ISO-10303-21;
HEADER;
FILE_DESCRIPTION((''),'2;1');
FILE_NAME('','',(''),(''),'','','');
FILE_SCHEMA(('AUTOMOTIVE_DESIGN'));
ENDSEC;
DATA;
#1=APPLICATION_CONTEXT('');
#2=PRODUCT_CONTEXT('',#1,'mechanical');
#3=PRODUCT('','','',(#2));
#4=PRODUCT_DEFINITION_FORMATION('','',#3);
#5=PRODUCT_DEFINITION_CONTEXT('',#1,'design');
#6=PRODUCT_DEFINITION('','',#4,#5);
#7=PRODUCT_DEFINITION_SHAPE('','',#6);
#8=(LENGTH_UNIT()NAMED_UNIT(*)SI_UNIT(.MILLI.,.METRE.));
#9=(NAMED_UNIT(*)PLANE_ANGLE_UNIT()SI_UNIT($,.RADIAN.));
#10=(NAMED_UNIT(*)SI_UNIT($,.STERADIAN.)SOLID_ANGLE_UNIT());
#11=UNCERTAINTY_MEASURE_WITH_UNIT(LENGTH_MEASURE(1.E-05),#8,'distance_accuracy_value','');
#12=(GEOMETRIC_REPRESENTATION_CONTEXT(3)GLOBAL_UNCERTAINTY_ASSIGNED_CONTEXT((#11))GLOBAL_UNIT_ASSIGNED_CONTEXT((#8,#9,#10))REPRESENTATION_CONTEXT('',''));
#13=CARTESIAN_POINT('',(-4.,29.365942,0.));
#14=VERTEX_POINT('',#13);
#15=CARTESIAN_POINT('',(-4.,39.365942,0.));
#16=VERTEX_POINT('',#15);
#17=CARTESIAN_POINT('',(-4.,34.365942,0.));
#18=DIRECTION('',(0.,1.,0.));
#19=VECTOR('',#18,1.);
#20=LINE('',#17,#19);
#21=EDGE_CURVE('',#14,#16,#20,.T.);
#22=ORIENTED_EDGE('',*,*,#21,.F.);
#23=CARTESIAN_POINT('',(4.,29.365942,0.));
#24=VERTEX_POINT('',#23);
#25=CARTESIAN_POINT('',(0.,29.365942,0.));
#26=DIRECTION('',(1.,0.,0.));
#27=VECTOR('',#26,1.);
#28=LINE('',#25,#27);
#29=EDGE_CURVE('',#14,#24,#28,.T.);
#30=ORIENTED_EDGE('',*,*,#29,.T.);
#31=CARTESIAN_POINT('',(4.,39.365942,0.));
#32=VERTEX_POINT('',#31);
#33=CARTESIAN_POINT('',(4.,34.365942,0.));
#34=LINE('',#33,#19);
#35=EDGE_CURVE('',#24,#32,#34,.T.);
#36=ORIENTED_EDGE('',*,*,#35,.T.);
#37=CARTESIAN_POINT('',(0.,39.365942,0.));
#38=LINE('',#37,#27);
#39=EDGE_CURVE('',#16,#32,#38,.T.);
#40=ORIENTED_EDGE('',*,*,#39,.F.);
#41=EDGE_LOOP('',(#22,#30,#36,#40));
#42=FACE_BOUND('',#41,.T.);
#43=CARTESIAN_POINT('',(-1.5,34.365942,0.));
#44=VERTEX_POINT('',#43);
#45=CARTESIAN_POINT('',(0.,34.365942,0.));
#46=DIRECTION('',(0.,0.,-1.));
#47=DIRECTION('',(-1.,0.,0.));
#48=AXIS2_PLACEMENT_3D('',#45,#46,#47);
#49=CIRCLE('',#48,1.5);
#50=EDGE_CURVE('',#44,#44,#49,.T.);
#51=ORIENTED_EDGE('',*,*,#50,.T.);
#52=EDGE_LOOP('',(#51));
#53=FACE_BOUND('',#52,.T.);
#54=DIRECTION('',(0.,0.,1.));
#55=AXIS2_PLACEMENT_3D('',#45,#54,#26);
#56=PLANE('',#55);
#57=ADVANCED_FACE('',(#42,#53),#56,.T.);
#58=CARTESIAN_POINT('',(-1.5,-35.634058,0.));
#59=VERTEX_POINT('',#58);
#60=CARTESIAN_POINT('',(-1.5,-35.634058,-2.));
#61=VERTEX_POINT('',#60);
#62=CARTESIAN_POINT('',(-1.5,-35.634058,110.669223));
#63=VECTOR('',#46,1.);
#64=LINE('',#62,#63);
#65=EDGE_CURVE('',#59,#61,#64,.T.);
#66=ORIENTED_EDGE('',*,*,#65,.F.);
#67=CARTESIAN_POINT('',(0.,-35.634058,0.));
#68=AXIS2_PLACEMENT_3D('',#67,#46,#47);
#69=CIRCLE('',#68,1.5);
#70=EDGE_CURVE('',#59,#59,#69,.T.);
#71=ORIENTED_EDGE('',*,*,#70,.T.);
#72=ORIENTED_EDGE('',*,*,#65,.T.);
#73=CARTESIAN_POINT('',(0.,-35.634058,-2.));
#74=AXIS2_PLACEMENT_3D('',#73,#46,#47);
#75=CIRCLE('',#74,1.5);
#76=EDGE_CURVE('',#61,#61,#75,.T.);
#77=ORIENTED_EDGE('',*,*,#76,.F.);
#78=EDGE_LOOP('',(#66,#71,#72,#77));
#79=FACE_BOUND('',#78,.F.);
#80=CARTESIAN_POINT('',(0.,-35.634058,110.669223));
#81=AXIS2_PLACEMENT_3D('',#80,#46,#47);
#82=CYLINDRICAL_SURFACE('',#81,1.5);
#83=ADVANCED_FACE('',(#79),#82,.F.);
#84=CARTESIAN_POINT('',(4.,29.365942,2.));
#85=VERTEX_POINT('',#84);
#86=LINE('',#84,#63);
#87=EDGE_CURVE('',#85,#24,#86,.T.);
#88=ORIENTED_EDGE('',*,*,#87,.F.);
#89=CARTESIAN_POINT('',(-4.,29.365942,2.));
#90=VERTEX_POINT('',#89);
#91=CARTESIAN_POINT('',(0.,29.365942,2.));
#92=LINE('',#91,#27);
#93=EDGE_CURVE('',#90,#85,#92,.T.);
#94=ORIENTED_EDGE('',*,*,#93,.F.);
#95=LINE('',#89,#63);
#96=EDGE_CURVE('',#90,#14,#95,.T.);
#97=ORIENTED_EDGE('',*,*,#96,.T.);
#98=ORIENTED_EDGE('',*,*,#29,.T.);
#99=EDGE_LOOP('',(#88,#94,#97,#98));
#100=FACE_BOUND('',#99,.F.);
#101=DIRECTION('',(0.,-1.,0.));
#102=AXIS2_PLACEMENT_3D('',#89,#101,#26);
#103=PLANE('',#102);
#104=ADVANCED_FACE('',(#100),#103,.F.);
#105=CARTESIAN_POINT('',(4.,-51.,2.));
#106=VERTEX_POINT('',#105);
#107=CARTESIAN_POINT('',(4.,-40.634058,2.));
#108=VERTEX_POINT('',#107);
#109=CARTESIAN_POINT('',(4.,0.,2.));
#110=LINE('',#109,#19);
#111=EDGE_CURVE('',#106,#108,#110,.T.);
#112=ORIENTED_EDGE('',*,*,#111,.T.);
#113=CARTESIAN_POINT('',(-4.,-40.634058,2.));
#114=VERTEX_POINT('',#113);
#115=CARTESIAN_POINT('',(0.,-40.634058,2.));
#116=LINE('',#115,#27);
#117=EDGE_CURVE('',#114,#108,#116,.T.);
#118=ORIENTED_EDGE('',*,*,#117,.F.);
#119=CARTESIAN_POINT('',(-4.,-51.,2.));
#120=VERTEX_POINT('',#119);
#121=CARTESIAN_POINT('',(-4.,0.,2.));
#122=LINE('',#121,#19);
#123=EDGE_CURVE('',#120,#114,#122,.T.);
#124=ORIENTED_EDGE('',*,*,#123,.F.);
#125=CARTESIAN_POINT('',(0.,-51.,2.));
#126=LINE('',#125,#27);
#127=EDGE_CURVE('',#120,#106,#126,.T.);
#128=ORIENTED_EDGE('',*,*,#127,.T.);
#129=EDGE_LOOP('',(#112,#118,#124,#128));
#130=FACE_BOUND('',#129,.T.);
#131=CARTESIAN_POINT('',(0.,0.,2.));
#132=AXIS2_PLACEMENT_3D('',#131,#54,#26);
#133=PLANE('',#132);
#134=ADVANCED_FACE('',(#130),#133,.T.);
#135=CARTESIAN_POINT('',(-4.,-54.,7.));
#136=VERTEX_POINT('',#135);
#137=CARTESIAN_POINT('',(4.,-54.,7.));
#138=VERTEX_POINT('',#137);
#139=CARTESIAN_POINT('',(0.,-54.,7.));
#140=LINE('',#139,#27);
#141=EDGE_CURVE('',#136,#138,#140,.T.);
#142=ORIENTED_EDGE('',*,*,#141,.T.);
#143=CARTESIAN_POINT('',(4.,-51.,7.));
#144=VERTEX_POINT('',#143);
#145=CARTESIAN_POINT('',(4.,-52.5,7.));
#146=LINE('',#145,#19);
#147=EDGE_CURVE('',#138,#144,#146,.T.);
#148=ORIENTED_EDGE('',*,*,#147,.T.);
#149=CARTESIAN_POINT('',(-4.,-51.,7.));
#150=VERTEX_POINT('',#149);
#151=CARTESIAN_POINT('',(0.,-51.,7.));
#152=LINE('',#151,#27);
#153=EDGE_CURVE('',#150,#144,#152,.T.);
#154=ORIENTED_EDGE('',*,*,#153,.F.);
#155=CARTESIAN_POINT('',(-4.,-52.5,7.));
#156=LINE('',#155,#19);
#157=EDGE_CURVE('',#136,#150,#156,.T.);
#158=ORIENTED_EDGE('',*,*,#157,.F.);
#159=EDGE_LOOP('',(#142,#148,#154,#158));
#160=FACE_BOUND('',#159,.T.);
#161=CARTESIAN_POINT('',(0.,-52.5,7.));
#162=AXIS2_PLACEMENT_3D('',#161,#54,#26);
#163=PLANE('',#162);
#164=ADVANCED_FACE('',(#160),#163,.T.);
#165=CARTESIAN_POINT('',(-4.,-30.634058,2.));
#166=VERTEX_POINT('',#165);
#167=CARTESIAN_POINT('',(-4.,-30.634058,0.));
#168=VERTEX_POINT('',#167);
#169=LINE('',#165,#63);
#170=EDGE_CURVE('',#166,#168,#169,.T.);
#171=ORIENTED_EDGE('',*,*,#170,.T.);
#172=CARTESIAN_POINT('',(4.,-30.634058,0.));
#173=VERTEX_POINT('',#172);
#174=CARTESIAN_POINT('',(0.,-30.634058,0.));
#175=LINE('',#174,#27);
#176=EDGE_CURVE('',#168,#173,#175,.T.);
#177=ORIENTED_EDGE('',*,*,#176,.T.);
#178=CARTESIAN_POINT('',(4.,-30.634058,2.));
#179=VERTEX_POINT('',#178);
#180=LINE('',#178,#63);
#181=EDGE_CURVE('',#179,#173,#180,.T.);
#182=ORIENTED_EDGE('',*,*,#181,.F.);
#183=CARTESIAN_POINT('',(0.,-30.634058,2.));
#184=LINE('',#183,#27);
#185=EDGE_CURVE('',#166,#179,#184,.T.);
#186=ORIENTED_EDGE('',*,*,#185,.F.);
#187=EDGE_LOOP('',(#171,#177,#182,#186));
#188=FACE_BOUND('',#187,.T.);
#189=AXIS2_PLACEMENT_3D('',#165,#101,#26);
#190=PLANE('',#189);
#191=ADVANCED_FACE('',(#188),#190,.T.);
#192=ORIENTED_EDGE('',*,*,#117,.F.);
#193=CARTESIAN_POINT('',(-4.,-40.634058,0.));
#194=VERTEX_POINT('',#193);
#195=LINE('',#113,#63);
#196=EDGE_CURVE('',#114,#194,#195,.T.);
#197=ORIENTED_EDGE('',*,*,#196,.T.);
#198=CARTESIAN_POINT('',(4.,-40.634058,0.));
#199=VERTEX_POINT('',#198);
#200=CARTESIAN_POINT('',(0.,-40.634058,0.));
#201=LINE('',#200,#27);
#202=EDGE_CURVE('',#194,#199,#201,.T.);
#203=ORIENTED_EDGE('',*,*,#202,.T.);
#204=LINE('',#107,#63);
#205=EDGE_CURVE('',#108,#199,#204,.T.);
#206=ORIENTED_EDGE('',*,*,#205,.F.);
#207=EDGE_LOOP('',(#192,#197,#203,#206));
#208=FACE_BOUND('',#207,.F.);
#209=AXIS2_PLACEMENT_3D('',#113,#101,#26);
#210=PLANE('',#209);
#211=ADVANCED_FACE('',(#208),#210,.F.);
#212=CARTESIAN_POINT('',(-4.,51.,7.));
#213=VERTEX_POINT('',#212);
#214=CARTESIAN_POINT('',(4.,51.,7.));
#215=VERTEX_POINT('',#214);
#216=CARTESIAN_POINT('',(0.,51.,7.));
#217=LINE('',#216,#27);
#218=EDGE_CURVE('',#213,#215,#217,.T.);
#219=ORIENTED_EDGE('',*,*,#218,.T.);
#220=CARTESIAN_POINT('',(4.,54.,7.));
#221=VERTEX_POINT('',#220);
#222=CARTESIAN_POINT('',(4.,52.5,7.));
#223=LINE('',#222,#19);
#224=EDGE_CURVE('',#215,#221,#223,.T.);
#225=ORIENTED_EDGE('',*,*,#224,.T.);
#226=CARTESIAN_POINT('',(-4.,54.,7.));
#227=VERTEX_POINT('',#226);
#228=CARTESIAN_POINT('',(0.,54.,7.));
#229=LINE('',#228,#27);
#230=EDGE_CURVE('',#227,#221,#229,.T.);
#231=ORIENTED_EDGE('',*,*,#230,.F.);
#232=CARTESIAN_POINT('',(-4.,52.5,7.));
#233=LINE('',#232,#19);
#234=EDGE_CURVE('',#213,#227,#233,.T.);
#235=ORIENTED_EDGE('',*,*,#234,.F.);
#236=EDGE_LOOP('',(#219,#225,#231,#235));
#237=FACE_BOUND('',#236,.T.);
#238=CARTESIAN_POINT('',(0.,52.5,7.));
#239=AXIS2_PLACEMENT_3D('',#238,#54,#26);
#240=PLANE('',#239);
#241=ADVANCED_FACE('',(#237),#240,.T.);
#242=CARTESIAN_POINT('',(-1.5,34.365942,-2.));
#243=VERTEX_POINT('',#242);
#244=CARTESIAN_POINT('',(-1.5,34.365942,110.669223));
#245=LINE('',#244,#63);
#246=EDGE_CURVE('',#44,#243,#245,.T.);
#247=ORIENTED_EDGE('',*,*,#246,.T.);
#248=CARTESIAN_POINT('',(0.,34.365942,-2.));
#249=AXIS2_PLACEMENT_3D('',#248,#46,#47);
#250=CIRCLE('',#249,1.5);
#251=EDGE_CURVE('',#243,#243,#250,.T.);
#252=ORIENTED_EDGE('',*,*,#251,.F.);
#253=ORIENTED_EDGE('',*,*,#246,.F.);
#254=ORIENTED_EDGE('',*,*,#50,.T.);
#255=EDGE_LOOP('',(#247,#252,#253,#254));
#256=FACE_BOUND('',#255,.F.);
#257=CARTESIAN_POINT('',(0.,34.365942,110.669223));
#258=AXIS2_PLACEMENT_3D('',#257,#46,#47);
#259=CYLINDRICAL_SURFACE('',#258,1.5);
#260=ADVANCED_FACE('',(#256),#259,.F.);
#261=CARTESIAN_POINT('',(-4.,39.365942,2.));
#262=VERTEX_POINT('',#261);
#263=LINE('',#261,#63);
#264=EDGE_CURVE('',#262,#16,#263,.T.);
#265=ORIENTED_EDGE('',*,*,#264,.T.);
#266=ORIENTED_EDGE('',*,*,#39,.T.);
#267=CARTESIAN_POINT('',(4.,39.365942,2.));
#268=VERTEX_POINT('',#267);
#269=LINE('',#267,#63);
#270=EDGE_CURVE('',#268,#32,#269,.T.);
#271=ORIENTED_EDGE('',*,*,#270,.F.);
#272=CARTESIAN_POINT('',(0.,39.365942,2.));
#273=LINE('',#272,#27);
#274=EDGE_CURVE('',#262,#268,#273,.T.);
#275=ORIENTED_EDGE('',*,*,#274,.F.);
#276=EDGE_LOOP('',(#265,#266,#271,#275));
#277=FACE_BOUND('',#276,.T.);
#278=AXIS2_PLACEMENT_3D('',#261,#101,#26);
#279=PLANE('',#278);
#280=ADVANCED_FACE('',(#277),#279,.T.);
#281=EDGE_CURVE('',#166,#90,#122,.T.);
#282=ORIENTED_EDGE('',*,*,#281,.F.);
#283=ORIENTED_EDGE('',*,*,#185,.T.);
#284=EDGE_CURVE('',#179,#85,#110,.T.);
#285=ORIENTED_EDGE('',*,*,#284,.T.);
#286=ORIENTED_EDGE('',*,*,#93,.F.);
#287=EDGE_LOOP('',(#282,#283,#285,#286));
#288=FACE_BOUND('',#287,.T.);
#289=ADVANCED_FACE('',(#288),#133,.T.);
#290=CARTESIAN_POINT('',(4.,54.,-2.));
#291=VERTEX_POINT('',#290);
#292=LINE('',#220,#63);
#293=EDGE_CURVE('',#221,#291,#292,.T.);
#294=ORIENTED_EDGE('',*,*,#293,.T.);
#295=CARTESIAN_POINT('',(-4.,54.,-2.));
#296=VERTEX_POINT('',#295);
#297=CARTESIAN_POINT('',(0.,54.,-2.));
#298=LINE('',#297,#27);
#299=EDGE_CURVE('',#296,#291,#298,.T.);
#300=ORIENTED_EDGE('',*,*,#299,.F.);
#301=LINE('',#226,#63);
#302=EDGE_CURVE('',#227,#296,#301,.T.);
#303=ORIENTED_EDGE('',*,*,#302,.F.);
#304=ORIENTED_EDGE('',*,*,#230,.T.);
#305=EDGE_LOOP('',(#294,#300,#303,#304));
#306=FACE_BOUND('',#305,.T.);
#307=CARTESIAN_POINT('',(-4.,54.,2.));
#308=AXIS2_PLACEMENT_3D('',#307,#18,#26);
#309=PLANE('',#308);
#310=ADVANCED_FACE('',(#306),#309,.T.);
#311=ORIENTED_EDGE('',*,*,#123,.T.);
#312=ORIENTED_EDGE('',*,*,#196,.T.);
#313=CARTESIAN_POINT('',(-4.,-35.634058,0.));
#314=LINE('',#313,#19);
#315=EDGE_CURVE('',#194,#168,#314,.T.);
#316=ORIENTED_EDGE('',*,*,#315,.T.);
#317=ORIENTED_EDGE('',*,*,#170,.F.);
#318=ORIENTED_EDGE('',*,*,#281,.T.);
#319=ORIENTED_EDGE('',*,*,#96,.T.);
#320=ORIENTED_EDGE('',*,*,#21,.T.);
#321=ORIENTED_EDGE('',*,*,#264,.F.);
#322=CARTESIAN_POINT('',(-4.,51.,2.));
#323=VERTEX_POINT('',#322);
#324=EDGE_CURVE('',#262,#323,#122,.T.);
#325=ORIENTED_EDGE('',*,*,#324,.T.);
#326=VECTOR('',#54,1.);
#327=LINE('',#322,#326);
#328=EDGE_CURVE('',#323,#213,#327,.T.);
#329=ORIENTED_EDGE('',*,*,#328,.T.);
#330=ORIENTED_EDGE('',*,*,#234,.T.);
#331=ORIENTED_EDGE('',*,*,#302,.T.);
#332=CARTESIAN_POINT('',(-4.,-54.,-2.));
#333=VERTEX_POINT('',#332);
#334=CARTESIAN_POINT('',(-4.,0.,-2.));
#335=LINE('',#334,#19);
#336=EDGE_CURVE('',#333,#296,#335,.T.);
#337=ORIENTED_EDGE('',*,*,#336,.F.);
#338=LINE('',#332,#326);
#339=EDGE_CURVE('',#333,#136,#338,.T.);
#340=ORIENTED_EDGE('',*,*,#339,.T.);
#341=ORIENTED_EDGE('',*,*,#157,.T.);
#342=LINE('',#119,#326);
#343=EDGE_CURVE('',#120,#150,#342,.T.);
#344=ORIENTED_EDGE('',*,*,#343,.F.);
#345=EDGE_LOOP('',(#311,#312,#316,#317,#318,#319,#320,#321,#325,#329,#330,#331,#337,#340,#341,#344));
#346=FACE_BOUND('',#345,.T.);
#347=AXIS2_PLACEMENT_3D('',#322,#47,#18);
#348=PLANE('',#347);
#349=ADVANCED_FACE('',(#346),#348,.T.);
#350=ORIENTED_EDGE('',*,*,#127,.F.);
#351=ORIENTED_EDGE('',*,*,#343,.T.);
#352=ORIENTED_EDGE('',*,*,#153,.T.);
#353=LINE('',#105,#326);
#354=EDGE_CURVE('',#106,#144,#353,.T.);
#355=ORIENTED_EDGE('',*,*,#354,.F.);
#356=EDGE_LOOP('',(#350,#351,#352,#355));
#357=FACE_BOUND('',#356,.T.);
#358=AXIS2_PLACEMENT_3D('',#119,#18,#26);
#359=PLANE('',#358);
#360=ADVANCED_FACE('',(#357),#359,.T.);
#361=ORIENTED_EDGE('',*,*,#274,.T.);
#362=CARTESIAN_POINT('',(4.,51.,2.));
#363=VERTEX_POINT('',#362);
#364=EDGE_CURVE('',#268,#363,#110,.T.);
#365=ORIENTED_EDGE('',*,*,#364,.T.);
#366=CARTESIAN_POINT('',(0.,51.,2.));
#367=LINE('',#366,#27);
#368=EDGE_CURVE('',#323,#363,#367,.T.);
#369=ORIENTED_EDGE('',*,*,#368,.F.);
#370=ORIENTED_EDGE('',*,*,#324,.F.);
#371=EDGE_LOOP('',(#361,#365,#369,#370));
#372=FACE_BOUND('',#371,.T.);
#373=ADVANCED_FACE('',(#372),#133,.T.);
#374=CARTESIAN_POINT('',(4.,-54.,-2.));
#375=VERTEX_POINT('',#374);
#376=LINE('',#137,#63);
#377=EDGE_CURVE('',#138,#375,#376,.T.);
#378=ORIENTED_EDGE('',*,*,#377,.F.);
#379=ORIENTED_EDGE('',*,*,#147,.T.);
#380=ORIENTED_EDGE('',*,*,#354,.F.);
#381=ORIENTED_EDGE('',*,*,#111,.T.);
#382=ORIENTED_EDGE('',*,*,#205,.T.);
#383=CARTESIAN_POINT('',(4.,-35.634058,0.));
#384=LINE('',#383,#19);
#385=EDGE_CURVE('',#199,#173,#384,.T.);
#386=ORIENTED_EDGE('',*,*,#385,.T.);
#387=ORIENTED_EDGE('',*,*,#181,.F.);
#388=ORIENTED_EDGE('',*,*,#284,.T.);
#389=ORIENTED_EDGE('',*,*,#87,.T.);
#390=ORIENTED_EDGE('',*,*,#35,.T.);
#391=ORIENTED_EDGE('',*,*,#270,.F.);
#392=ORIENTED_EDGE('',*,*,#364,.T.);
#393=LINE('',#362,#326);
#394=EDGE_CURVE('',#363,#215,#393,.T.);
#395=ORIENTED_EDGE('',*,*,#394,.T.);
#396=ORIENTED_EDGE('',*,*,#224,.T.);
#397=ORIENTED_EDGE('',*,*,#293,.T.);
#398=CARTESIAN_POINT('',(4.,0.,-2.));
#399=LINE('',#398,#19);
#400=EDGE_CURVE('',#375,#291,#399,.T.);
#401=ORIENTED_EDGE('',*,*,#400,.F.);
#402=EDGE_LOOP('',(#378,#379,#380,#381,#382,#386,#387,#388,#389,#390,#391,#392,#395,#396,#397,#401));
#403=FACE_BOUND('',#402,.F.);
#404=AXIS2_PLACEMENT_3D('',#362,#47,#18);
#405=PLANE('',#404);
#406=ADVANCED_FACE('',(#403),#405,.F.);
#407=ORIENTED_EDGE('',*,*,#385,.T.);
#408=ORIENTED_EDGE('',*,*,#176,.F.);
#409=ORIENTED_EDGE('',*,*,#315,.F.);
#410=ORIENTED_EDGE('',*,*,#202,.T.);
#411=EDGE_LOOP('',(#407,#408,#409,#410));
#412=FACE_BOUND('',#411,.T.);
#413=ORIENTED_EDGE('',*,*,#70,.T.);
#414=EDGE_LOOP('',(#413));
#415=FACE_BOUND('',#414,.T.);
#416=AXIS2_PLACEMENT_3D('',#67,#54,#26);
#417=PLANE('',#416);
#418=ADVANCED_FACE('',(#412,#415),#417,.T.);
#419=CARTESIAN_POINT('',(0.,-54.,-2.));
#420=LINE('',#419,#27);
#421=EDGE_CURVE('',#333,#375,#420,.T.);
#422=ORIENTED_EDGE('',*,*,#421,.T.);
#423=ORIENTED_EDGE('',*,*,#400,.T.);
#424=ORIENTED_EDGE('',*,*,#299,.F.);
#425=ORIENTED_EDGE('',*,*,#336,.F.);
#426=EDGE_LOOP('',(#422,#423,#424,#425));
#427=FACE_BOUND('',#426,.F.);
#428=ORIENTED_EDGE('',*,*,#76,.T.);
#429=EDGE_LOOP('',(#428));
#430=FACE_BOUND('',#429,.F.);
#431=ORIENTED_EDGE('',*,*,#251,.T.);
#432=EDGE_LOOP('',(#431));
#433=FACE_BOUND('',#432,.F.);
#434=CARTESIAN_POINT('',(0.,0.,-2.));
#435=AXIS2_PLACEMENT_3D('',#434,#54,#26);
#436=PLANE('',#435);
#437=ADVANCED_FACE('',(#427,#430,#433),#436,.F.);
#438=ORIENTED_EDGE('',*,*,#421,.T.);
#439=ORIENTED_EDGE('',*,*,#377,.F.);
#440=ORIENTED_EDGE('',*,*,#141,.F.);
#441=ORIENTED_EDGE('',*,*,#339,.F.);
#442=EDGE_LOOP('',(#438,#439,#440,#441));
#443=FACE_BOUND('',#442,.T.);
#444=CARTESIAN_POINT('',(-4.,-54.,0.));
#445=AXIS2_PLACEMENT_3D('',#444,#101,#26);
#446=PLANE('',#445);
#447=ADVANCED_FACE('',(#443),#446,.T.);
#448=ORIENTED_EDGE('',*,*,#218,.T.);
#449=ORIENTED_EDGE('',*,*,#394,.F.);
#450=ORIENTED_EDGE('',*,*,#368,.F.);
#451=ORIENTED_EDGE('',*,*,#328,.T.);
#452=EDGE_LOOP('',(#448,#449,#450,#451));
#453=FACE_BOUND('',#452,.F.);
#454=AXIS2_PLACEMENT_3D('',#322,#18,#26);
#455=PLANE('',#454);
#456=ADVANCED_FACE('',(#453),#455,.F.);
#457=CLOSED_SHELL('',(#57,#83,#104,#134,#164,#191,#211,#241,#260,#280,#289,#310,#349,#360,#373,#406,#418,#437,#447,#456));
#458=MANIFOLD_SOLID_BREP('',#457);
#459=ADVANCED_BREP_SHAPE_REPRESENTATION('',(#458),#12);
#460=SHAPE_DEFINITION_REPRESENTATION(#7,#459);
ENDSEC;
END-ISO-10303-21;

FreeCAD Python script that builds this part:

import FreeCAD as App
import Part
import Sketcher

V = App.Vector


def add_polygon(sketch, points):
    """Adds a closed chain of lines whose ends are joined by coincident constraints."""
    first, n = sketch.GeometryCount, len(points)
    for a, b in zip(points, points[1:] + points[:1]):
        sketch.addGeometry(Part.LineSegment(App.Vector(*a, 0), App.Vector(*b, 0)), False)
    for i in range(n):
        sketch.addConstraint(Sketcher.Constraint("Coincident", first + i, 2, first + (i + 1) % n, 1))

doc = App.newDocument("Part")
body = doc.addObject("PartDesign::Body", "Body")

# Sketch on XY plane
sketch1 = doc.addObject("Sketcher::SketchObject", "Sketch")
body.addObject(sketch1)
sketch1.AttachmentSupport = (doc.XY_Plane, [""])
sketch1.MapMode = "FlatFace"
add_polygon(sketch1, [(-4, 54), (-4, -54), (4, -54), (4, 54)])  # lines 0-3
sketch1.addConstraint([
    Sketcher.Constraint("Vertical", 0),
    Sketcher.Constraint("Horizontal", 1),
    Sketcher.Constraint("Vertical", 2),
    Sketcher.Constraint("Horizontal", 3),
    Sketcher.Constraint("Symmetric", 0, 2, 2, 2, -1, 1),
    Sketcher.Constraint("DistanceX", 1, 1, 1, 2, 8.0),
    Sketcher.Constraint("DistanceY", 0, 2, 0, 1, 108.0),
])
pad1 = doc.addObject("PartDesign::Pad", "Pad")
body.addObject(pad1)
pad1.Profile = sketch1
pad1.Length = 4
pad1.Midplane = True

# Sketch on XY plane
sketch2 = doc.addObject("Sketcher::SketchObject", "Sketch001")
body.addObject(sketch2)
sketch2.AttachmentSupport = (doc.XY_Plane, [""])
sketch2.MapMode = "FlatFace"
sketch2.AttachmentOffset = App.Placement(V(0, 0, 2), App.Rotation())
add_polygon(sketch2, [(-4, 54), (-4, 51), (4, 51), (4, 54)])  # lines 0-3
add_polygon(sketch2, [(-4, -51), (-4, -54), (4, -54), (4, -51)])  # lines 4-7
sketch2.addConstraint([
    Sketcher.Constraint("Vertical", 0),
    Sketcher.Constraint("Horizontal", 1),
    Sketcher.Constraint("Vertical", 2),
    Sketcher.Constraint("Horizontal", 3),
    Sketcher.Constraint("Vertical", 4),
    Sketcher.Constraint("Horizontal", 5),
    Sketcher.Constraint("Vertical", 6),
    Sketcher.Constraint("Horizontal", 7),
    Sketcher.Constraint("Symmetric", 2, 2, 4, 2, -1, 1),
    Sketcher.Constraint("Symmetric", 0, 2, 6, 2, -1, 1),
    Sketcher.Constraint("Vertical", 3, 2, 4, 2),
    Sketcher.Constraint("DistanceX", 1, 1, 1, 2, 8.0),
    Sketcher.Constraint("DistanceY", 0, 2, 0, 1, 3.0),
    Sketcher.Constraint("DistanceY", -1, 1, 0, 2, 51.0),
])
pad2 = doc.addObject("PartDesign::Pad", "Pad001")
body.addObject(pad2)
pad2.Profile = sketch2
pad2.Length = 5

# Sketch on XY plane
sketch3 = doc.addObject("Sketcher::SketchObject", "Sketch002")
body.addObject(sketch3)
sketch3.AttachmentSupport = (doc.XY_Plane, [""])
sketch3.MapMode = "FlatFace"
sketch3.AttachmentOffset = App.Placement(V(0, 0, 2), App.Rotation())
sketch3.addGeometry([
    Part.Circle(V(0, 34.365942, 0), V(0, 0, 1), 1.5),
    Part.Circle(V(0, -35.634058, 0), V(0, 0, 1), 1.5),
], False)
sketch3.addConstraint([
    Sketcher.Constraint("Equal", 0, 1),
    Sketcher.Constraint("PointOnObject", 0, 3, -2),
    Sketcher.Constraint("PointOnObject", 1, 3, -2),
    Sketcher.Constraint("Diameter", 0, 3.0),
    Sketcher.Constraint("DistanceY", 1, 3, 0, 3, 70.0),
    Sketcher.Constraint("DistanceY", -1, 1, 0, 3, 34.365942),
])
doc.recompute()
hole = doc.addObject("PartDesign::Hole", "Hole")
body.addObject(hole)
hole.Profile = sketch3
hole.ThreadType = "None"
hole.Diameter = 3
hole.DepthType = "ThroughAll"

# Sketch on XY plane
sketch4 = doc.addObject("Sketcher::SketchObject", "Sketch003")
body.addObject(sketch4)
sketch4.AttachmentSupport = (doc.XY_Plane, [""])
sketch4.MapMode = "FlatFace"
sketch4.AttachmentOffset = App.Placement(V(0, 0, 2), App.Rotation())
add_polygon(sketch4, [(-4, -30.634058), (-4, -40.634058), (4, -40.634058), (4, -30.634058)])  # lines 0-3
sketch4.addGeometry(Part.Circle(V(0, -35.634058, 0), V(0, 0, 1), 1.5), False)  # 4
add_polygon(sketch4, [(-4, 39.365942), (-4, 29.365942), (4, 29.365942), (4, 39.365942)])  # lines 5-8
sketch4.addGeometry(Part.Circle(V(0, 34.365942, 0), V(0, 0, 1), 1.5), False)  # 9
sketch4.addConstraint([
    Sketcher.Constraint("Vertical", 0),
    Sketcher.Constraint("Horizontal", 1),
    Sketcher.Constraint("Vertical", 2),
    Sketcher.Constraint("Horizontal", 3),
    Sketcher.Constraint("Vertical", 5),
    Sketcher.Constraint("Horizontal", 6),
    Sketcher.Constraint("Vertical", 7),
    Sketcher.Constraint("Horizontal", 8),
    Sketcher.Constraint("Equal", 4, 9),
    Sketcher.Constraint("PointOnObject", 4, 3, -2),
    Sketcher.Constraint("PointOnObject", 9, 3, -2),
    Sketcher.Constraint("Vertical", 3, 2, 5, 2),
    Sketcher.Constraint("Vertical", 2, 2, 6, 2),
    Sketcher.Constraint("Equal", 2, 5),
    Sketcher.Constraint("Diameter", 4, 3.0),
    Sketcher.Constraint("DistanceX", 1, 1, 1, 2, 8.0),
    Sketcher.Constraint("DistanceY", 0, 2, 0, 1, 10.0),
    Sketcher.Constraint("DistanceX", 0, 2, -1, 1, 4.0),
    Sketcher.Constraint("DistanceY", 4, 3, 9, 3, 70.0),
    Sketcher.Constraint("DistanceY", 0, 2, 4, 3, 5.0),
    Sketcher.Constraint("DistanceY", 5, 2, 9, 3, 5.0),
    Sketcher.Constraint("DistanceY", 4, 3, -1, 1, 35.634058),
])
pocket1 = doc.addObject("PartDesign::Pocket", "Pocket")
body.addObject(pocket1)
pocket1.Profile = sketch4
pocket1.Length = 2

doc.recompute()
